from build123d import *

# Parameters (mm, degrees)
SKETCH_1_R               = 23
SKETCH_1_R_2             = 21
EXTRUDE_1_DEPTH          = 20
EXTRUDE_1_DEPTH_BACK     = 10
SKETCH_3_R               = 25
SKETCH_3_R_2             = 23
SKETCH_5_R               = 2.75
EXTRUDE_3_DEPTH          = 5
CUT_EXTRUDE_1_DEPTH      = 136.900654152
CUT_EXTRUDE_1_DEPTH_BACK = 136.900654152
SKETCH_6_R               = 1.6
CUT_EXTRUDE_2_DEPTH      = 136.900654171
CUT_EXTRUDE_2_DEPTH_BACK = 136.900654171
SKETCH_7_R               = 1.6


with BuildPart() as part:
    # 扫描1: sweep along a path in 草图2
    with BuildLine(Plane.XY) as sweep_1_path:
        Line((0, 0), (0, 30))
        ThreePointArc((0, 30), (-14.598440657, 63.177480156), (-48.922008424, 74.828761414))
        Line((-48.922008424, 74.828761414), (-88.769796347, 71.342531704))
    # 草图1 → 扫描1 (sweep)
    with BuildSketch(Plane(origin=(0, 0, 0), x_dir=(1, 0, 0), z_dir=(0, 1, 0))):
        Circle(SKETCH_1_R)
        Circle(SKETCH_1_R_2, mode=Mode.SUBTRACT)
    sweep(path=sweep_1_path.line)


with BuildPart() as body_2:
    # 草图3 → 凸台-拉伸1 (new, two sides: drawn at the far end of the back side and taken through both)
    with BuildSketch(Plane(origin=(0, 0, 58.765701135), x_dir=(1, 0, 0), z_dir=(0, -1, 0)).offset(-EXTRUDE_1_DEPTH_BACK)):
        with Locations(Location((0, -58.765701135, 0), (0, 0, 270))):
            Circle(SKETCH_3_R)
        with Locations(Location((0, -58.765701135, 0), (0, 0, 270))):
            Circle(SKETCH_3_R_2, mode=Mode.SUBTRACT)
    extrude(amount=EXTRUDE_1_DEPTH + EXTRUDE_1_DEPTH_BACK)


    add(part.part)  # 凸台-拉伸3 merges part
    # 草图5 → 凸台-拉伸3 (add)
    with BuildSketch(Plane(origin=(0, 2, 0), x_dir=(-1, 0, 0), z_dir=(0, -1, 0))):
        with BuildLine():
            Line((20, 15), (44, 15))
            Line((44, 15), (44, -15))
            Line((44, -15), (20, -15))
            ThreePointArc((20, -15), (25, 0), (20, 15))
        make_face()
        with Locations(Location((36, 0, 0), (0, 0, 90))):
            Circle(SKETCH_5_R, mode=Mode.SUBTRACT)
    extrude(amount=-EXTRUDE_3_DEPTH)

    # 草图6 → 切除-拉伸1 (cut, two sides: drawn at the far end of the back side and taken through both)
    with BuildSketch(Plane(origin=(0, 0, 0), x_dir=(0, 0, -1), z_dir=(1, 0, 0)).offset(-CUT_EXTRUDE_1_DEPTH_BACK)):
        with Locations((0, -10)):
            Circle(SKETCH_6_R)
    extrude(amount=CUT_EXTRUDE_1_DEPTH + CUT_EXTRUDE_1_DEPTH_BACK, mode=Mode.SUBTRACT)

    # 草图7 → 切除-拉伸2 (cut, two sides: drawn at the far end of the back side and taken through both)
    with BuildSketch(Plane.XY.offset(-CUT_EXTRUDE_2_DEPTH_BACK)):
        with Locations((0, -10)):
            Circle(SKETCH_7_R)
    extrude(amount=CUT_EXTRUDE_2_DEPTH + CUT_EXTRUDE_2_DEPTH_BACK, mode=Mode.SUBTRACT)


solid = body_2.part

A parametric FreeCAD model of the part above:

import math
import FreeCAD as App
import Part
import Sketcher
from FreeCAD import Vector
Q = App.Units.Quantity

doc = App.newDocument("Part")
params = doc.addObject("Spreadsheet::Sheet", "Params")
for row, (alias, value) in enumerate([
    ("sketch1_diameter", "46 mm"),
    ("sketch1_diameter2", "42 mm"),
    ("sketch2_radius", "45 mm"),
    ("sketch2_height", "30 mm"),
    ("sketch2_length", "40 mm"),
    ("sketch3_diameter", "50 mm"),
    ("sketch3_diameter2", "46 mm"),
    ("pad1_length", "20 mm"),
    ("pad1_length2", "10 mm"),
    ("sketch4_radius", "25 mm"),
    ("sketch4_diameter", "5.5 mm"),
    ("sketch4_width", "24 mm"),
    ("sketch4_height", "30 mm"),
    ("pad2_length", "5 mm"),
    ("sketch5_diameter", "3.2 mm"),
    ("sketch6_diameter", "3.2 mm"),
], start=1):
    params.set(f"A{row}", alias)
    params.set(f"B{row}", "=" + value)
    params.setAlias(f"B{row}", alias)

body = doc.addObject("PartDesign::Body", "Body")

sketch1 = doc.addObject("Sketcher::SketchObject", "Sketch")
body.addObject(sketch1)
sketch1.AttachmentSupport = (doc.XZ_Plane, [""])
sketch1.MapMode = "FlatFace"
sketch1.addGeometry(Part.Circle(Vector(0, 0, 0), Vector(0, 0, 1), 23), False)
sketch1.addGeometry(Part.Circle(Vector(0, 0, 0), Vector(0, 0, 1), 21), False)
sketch1.addConstraint(Sketcher.Constraint("Coincident", 0, 3, -1, 1))
sketch1.addConstraint(Sketcher.Constraint("Coincident", 1, 3, -1, 1))
sketch1.addConstraint(Sketcher.Constraint("Diameter", 0, 46.0))
sketch1.addConstraint(Sketcher.Constraint("Diameter", 1, 42.0))
sketch1.setExpression("Constraints[2]", "Params.sketch1_diameter")
sketch1.setExpression("Constraints[3]", "Params.sketch1_diameter2")

sketch2 = doc.addObject("Sketcher::SketchObject", "Sketch001")
body.addObject(sketch2)
sketch2.AttachmentSupport = (doc.XY_Plane, [""])
sketch2.MapMode = "FlatFace"
sketch2.addGeometry(Part.LineSegment(Vector(0, 0, 0), Vector(0, 30, 0)), False)
sketch2.addGeometry(Part.ArcOfCircle(Part.Circle(Vector(-45, 30, 0), Vector(0, 0, 1), 45), math.radians(0), math.radians(95)), False)
sketch2.addGeometry(Part.LineSegment(Vector(-48.922008, 74.828761, 0), Vector(-88.769796, 71.342532, 0)), False)
sketch2.addConstraint(Sketcher.Constraint("Tangent", 0, 2, 1, 1))
sketch2.addConstraint(Sketcher.Constraint("Tangent", 1, 2, 2, 1))
sketch2.addConstraint(Sketcher.Constraint("Vertical", 0))
sketch2.addConstraint(Sketcher.Constraint("Coincident", 0, 1, -1, 1))
sketch2.addConstraint(Sketcher.Constraint("Radius", 1, 45.0))
sketch2.addConstraint(Sketcher.Constraint("DistanceY", 0, 1, 0, 2, 30.0))
sketch2.addConstraint(Sketcher.Constraint("Angle", 2, Q("-175 deg")))
sketch2.addConstraint(Sketcher.Constraint("Distance", 2, 40.0))
sketch2.setExpression("Constraints[4]", "Params.sketch2_radius")
sketch2.setExpression("Constraints[5]", "Params.sketch2_height")
sketch2.setExpression("Constraints[7]", "Params.sketch2_length")
doc.recompute()

additivepipe = doc.addObject("PartDesign::AdditivePipe", "AdditivePipe")
body.addObject(additivepipe)
additivepipe.Profile = sketch1
additivepipe.Spine = (sketch2, ["Edge1", "Edge2", "Edge3"])
body2 = doc.addObject("PartDesign::Body", "Body001")

sketch3 = doc.addObject("Sketcher::SketchObject", "Sketch002")
body2.addObject(sketch3)
sketch3.AttachmentSupport = (doc.getObject("XZ_Plane001"), [""])
sketch3.MapMode = "FlatFace"
sketch3.addGeometry(Part.Circle(Vector(0, 0, 0), Vector(0, 0, 1), 25), False)
sketch3.addGeometry(Part.Circle(Vector(0, 0, 0), Vector(0, 0, 1), 23), False)
sketch3.addConstraint(Sketcher.Constraint("Coincident", 0, 3, -1, 1))
sketch3.addConstraint(Sketcher.Constraint("Coincident", 1, 3, -1, 1))
sketch3.addConstraint(Sketcher.Constraint("Diameter", 0, 50.0))
sketch3.addConstraint(Sketcher.Constraint("Diameter", 1, 46.0))
sketch3.setExpression("Constraints[2]", "Params.sketch3_diameter")
sketch3.setExpression("Constraints[3]", "Params.sketch3_diameter2")
pad1 = doc.addObject("PartDesign::Pad", "Pad")
body2.addObject(pad1)
pad1.Profile = sketch3
pad1.Type = "TwoLengths"
pad1.setExpression("Length", "Params.pad1_length")
pad1.setExpression("Length2", "Params.pad1_length2")
doc.recompute()

boolean = doc.addObject("PartDesign::Boolean", "Boolean")
body2.addObject(boolean)
boolean.Type = "Fuse"
boolean.addObjects([body])

sketch4 = doc.addObject("Sketcher::SketchObject", "Sketch003")
body2.addObject(sketch4)
sketch4.AttachmentSupport = (doc.getObject("XZ_Plane001"), [""])
sketch4.MapMode = "FlatFace"
sketch4.AttachmentOffset = App.Placement(Vector(0, 0, -2), App.Rotation())
sketch4.addGeometry(Part.LineSegment(Vector(-44, -15, 0), Vector(-20, -15, 0)), False)
sketch4.addGeometry(Part.ArcOfCircle(Part.Circle(Vector(0, 0, 0), Vector(0, 0, 1), 25), math.radians(143.130102), math.radians(216.869898)), False)
sketch4.addGeometry(Part.LineSegment(Vector(-20, 15, 0), Vector(-44, 15, 0)), False)
sketch4.addGeometry(Part.LineSegment(Vector(-44, 15, 0), Vector(-44, -15, 0)), False)
sketch4.addGeometry(Part.Circle(Vector(-36, 0, 0), Vector(0, 0, 1), 2.75), False)
sketch4.addConstraint(Sketcher.Constraint("Coincident", 0, 2, 1, 2))
sketch4.addConstraint(Sketcher.Constraint("Coincident", 1, 1, 2, 1))
sketch4.addConstraint(Sketcher.Constraint("Coincident", 2, 2, 3, 1))
sketch4.addConstraint(Sketcher.Constraint("Coincident", 3, 2, 0, 1))
sketch4.addConstraint(Sketcher.Constraint("Horizontal", 0))
sketch4.addConstraint(Sketcher.Constraint("Horizontal", 2))
sketch4.addConstraint(Sketcher.Constraint("Vertical", 3))
sketch4.addConstraint(Sketcher.Constraint("Coincident", 1, 3, -1, 1))
sketch4.addConstraint(Sketcher.Constraint("PointOnObject", 4, 3, -1))
sketch4.addConstraint(Sketcher.Constraint("Vertical", 0, 2, 1, 1))
sketch4.addConstraint(Sketcher.Constraint("Radius", 1, 25.0))
sketch4.addConstraint(Sketcher.Constraint("Diameter", 4, 5.5))
sketch4.addConstraint(Sketcher.Constraint("DistanceX", 0, 1, 0, 2, 24.0))
sketch4.addConstraint(Sketcher.Constraint("DistanceY", 3, 2, 3, 1, 30.0))
sketch4.addConstraint(Sketcher.Constraint("DistanceX", 4, 3, -1, 1, 36.0))
sketch4.setExpression("Constraints[10]", "Params.sketch4_radius")
sketch4.setExpression("Constraints[11]", "Params.sketch4_diameter")
sketch4.setExpression("Constraints[12]", "Params.sketch4_width")
sketch4.setExpression("Constraints[13]", "Params.sketch4_height")
pad2 = doc.addObject("PartDesign::Pad", "Pad001")
body2.addObject(pad2)
pad2.Profile = sketch4
pad2.setExpression("Length", "Params.pad2_length")
pad2.Reversed = True

sketch5 = doc.addObject("Sketcher::SketchObject", "Sketch004")
body2.addObject(sketch5)
sketch5.AttachmentSupport = (doc.getObject("YZ_Plane001"), [""])
sketch5.MapMode = "FlatFace"
sketch5.addGeometry(Part.Circle(Vector(-10, 0, 0), Vector(0, 0, 1), 1.6), False)
sketch5.addConstraint(Sketcher.Constraint("PointOnObject", 0, 3, -1))
sketch5.addConstraint(Sketcher.Constraint("Diameter", 0, 3.2))
sketch5.addConstraint(Sketcher.Constraint("DistanceX", 0, 3, -1, 1, 10.0))
sketch5.setExpression("Constraints[1]", "Params.sketch5_diameter")
pocket1 = doc.addObject("PartDesign::Pocket", "Pocket")
body2.addObject(pocket1)
pocket1.Profile = sketch5
pocket1.Type = "ThroughAll"
pocket1.Midplane = True

sketch6 = doc.addObject("Sketcher::SketchObject", "Sketch005")
body2.addObject(sketch6)
sketch6.AttachmentSupport = (doc.getObject("XY_Plane001"), [""])
sketch6.MapMode = "FlatFace"
sketch6.addGeometry(Part.Circle(Vector(0, -10, 0), Vector(0, 0, 1), 1.6), False)
sketch6.addConstraint(Sketcher.Constraint("PointOnObject", 0, 3, -2))
sketch6.addConstraint(Sketcher.Constraint("Diameter", 0, 3.2))
sketch6.addConstraint(Sketcher.Constraint("DistanceY", 0, 3, -1, 1, 10.0))
sketch6.setExpression("Constraints[1]", "Params.sketch6_diameter")
pocket2 = doc.addObject("PartDesign::Pocket", "Pocket001")
body2.addObject(pocket2)
pocket2.Profile = sketch6
pocket2.Type = "ThroughAll"
pocket2.Midplane = True

doc.recompute()
